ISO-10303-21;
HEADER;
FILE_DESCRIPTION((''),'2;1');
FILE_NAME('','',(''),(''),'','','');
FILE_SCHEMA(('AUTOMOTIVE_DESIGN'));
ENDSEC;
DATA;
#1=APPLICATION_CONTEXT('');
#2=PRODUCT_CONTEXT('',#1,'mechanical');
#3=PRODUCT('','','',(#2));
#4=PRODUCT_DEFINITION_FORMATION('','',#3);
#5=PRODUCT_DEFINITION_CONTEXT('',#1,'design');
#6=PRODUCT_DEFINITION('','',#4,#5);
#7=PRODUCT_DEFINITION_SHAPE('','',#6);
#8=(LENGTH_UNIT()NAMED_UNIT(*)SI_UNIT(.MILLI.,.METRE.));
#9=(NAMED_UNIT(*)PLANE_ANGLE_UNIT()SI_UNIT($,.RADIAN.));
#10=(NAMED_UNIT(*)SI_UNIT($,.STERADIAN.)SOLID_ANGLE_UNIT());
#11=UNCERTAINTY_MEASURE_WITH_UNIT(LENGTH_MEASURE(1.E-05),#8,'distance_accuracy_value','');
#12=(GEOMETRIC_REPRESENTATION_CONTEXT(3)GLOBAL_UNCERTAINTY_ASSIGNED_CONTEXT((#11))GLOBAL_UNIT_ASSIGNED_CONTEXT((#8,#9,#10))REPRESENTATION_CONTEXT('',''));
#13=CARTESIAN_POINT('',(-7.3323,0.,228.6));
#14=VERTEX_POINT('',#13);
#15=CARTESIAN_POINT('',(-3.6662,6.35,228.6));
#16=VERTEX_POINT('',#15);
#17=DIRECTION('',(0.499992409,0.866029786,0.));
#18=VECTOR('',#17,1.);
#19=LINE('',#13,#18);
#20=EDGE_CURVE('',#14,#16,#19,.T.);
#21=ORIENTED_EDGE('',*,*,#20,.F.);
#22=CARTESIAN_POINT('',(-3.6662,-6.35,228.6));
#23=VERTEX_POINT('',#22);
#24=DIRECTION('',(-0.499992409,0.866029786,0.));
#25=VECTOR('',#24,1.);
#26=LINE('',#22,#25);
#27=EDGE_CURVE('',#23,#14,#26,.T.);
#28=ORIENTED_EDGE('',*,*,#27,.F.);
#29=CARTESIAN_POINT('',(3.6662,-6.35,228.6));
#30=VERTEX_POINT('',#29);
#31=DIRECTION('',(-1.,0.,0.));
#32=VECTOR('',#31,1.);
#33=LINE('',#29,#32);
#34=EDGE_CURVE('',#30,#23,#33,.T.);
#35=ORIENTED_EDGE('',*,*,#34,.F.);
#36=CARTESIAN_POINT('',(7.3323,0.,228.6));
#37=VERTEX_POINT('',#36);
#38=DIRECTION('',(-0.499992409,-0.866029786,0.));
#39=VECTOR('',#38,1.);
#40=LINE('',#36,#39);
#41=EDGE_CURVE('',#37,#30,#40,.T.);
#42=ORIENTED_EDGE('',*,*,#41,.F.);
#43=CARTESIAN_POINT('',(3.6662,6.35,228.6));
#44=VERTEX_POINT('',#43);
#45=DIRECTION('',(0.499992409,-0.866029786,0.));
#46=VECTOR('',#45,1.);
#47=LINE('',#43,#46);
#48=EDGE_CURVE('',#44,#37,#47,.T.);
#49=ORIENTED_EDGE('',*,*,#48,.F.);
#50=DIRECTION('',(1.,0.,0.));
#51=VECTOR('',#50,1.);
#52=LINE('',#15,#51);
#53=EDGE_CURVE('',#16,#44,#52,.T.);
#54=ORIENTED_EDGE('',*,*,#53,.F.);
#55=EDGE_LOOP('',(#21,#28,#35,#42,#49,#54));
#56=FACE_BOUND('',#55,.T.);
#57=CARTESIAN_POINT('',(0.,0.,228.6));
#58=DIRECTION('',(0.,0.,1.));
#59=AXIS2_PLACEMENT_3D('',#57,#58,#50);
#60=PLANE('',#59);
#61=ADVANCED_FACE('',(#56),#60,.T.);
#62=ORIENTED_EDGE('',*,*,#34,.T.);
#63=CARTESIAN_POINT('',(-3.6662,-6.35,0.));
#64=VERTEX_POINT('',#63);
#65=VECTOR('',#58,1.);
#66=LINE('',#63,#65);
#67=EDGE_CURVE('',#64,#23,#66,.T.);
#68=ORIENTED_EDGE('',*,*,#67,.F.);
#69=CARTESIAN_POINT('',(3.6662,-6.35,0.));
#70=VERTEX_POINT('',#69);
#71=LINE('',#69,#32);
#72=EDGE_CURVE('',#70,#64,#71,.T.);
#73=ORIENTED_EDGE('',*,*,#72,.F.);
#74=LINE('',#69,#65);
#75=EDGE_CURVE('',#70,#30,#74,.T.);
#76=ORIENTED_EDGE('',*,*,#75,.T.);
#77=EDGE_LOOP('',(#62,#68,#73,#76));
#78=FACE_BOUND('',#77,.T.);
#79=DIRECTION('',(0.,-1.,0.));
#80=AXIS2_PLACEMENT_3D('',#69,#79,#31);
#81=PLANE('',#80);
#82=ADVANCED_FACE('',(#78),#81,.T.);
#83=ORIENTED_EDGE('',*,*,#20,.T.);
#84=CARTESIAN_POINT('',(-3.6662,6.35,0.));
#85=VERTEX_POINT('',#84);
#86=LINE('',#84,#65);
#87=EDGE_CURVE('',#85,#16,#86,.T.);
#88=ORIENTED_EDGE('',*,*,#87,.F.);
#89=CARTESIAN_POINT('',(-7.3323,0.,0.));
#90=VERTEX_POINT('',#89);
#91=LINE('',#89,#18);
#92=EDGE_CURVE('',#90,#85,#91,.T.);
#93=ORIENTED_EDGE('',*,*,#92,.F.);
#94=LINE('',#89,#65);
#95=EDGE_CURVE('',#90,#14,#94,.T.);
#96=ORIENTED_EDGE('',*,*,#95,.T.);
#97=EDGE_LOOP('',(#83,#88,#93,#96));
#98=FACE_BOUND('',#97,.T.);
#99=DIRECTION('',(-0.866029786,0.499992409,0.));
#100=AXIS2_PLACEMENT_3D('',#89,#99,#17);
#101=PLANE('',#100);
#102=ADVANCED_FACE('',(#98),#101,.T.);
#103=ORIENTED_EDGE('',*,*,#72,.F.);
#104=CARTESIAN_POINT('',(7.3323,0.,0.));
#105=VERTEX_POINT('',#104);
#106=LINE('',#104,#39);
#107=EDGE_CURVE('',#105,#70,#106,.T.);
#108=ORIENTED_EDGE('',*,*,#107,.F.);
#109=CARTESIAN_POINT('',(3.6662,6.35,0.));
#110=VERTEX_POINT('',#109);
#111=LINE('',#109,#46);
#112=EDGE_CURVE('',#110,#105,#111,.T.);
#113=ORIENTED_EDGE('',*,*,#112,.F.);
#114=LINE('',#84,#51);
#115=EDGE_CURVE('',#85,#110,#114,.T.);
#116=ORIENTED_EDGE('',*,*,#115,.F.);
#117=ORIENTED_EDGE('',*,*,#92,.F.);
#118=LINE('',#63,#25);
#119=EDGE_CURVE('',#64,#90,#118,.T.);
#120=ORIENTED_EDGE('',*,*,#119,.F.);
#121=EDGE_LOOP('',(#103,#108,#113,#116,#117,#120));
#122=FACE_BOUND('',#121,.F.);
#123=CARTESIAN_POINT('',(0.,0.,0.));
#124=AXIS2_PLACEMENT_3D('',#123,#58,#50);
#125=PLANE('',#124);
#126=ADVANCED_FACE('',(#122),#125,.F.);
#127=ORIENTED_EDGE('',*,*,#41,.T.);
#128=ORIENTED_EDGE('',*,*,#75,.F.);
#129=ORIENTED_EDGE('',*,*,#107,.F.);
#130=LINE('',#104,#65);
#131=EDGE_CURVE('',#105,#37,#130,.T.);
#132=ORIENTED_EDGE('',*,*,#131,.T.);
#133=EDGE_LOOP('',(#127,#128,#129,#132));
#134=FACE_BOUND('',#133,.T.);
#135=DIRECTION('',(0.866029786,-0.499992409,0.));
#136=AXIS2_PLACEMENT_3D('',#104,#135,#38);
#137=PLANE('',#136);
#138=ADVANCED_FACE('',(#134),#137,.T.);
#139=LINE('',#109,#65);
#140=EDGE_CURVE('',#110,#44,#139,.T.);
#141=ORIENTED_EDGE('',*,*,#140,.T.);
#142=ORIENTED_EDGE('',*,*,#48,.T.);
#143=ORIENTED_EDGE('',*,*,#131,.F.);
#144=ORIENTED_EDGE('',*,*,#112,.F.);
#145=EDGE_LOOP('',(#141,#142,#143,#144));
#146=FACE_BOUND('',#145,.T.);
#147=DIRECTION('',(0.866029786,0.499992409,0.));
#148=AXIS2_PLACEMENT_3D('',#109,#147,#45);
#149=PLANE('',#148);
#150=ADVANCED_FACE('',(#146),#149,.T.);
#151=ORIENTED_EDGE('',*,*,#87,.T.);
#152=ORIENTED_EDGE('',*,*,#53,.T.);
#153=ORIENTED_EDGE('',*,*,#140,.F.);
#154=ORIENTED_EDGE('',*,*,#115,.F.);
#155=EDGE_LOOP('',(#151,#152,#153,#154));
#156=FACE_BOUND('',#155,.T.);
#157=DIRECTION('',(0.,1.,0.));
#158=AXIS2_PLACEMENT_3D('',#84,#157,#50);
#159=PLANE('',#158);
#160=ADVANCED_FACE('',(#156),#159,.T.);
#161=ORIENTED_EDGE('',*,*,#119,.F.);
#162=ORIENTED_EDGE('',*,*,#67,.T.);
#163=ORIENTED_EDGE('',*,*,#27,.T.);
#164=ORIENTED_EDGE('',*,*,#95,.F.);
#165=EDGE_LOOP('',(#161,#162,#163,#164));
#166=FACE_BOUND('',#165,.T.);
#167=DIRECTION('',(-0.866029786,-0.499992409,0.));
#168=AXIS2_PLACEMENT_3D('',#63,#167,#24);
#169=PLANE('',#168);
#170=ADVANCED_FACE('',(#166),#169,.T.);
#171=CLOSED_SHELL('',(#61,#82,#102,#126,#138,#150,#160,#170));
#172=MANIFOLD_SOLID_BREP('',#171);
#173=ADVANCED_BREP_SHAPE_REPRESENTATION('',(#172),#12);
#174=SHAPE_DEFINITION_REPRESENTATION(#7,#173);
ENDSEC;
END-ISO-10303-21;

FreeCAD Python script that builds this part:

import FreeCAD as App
import Part
import Sketcher
Q = App.Units.Quantity


def add_polygon(sketch, points):
    """Adds a closed chain of lines whose ends are joined by coincident constraints."""
    first, n = sketch.GeometryCount, len(points)
    for a, b in zip(points, points[1:] + points[:1]):
        sketch.addGeometry(Part.LineSegment(App.Vector(*a, 0), App.Vector(*b, 0)), False)
    for i in range(n):
        sketch.addConstraint(Sketcher.Constraint("Coincident", first + i, 2, first + (i + 1) % n, 1))

doc = App.newDocument("Part")
body = doc.addObject("PartDesign::Body", "Body")

sketch1 = body.newObject("Sketcher::SketchObject", "Sketch")
sketch1.AttachmentSupport = (doc.getObject("XY_Plane"), [""])
sketch1.MapMode = "FlatFace"
add_polygon(sketch1, [(7, 0), (4, 6), (-4, 6), (-7, 0), (-4, -6), (4, -6)])
sketch1.addConstraint([
    Sketcher.Constraint("Horizontal", 1),
    Sketcher.Constraint("Horizontal", 4),
    Sketcher.Constraint("Symmetric", 0, 2, 3, 2, -1, 1),
    Sketcher.Constraint("Symmetric", 2, 2, 5, 2, -1, 1),
    Sketcher.Constraint("PointOnObject", 2, 2, -1),
    Sketcher.Constraint("Parallel", 2, 5),
    Sketcher.Constraint("Vertical", 1, 2, 3, 2),
    Sketcher.Constraint("DistanceY", 3, 2, 1, 2, Q("0.5 in")),
    Sketcher.Constraint("Angle", 0, Q("119.9995 deg")),
    Sketcher.Constraint("DistanceX", 2, 2, 0, 2, Q("0.433 in")),
])
pad1 = body.newObject("PartDesign::Pad", "Pad")
pad1.Profile = sketch1
pad1.Length = Q("9 in")

doc.recompute()
